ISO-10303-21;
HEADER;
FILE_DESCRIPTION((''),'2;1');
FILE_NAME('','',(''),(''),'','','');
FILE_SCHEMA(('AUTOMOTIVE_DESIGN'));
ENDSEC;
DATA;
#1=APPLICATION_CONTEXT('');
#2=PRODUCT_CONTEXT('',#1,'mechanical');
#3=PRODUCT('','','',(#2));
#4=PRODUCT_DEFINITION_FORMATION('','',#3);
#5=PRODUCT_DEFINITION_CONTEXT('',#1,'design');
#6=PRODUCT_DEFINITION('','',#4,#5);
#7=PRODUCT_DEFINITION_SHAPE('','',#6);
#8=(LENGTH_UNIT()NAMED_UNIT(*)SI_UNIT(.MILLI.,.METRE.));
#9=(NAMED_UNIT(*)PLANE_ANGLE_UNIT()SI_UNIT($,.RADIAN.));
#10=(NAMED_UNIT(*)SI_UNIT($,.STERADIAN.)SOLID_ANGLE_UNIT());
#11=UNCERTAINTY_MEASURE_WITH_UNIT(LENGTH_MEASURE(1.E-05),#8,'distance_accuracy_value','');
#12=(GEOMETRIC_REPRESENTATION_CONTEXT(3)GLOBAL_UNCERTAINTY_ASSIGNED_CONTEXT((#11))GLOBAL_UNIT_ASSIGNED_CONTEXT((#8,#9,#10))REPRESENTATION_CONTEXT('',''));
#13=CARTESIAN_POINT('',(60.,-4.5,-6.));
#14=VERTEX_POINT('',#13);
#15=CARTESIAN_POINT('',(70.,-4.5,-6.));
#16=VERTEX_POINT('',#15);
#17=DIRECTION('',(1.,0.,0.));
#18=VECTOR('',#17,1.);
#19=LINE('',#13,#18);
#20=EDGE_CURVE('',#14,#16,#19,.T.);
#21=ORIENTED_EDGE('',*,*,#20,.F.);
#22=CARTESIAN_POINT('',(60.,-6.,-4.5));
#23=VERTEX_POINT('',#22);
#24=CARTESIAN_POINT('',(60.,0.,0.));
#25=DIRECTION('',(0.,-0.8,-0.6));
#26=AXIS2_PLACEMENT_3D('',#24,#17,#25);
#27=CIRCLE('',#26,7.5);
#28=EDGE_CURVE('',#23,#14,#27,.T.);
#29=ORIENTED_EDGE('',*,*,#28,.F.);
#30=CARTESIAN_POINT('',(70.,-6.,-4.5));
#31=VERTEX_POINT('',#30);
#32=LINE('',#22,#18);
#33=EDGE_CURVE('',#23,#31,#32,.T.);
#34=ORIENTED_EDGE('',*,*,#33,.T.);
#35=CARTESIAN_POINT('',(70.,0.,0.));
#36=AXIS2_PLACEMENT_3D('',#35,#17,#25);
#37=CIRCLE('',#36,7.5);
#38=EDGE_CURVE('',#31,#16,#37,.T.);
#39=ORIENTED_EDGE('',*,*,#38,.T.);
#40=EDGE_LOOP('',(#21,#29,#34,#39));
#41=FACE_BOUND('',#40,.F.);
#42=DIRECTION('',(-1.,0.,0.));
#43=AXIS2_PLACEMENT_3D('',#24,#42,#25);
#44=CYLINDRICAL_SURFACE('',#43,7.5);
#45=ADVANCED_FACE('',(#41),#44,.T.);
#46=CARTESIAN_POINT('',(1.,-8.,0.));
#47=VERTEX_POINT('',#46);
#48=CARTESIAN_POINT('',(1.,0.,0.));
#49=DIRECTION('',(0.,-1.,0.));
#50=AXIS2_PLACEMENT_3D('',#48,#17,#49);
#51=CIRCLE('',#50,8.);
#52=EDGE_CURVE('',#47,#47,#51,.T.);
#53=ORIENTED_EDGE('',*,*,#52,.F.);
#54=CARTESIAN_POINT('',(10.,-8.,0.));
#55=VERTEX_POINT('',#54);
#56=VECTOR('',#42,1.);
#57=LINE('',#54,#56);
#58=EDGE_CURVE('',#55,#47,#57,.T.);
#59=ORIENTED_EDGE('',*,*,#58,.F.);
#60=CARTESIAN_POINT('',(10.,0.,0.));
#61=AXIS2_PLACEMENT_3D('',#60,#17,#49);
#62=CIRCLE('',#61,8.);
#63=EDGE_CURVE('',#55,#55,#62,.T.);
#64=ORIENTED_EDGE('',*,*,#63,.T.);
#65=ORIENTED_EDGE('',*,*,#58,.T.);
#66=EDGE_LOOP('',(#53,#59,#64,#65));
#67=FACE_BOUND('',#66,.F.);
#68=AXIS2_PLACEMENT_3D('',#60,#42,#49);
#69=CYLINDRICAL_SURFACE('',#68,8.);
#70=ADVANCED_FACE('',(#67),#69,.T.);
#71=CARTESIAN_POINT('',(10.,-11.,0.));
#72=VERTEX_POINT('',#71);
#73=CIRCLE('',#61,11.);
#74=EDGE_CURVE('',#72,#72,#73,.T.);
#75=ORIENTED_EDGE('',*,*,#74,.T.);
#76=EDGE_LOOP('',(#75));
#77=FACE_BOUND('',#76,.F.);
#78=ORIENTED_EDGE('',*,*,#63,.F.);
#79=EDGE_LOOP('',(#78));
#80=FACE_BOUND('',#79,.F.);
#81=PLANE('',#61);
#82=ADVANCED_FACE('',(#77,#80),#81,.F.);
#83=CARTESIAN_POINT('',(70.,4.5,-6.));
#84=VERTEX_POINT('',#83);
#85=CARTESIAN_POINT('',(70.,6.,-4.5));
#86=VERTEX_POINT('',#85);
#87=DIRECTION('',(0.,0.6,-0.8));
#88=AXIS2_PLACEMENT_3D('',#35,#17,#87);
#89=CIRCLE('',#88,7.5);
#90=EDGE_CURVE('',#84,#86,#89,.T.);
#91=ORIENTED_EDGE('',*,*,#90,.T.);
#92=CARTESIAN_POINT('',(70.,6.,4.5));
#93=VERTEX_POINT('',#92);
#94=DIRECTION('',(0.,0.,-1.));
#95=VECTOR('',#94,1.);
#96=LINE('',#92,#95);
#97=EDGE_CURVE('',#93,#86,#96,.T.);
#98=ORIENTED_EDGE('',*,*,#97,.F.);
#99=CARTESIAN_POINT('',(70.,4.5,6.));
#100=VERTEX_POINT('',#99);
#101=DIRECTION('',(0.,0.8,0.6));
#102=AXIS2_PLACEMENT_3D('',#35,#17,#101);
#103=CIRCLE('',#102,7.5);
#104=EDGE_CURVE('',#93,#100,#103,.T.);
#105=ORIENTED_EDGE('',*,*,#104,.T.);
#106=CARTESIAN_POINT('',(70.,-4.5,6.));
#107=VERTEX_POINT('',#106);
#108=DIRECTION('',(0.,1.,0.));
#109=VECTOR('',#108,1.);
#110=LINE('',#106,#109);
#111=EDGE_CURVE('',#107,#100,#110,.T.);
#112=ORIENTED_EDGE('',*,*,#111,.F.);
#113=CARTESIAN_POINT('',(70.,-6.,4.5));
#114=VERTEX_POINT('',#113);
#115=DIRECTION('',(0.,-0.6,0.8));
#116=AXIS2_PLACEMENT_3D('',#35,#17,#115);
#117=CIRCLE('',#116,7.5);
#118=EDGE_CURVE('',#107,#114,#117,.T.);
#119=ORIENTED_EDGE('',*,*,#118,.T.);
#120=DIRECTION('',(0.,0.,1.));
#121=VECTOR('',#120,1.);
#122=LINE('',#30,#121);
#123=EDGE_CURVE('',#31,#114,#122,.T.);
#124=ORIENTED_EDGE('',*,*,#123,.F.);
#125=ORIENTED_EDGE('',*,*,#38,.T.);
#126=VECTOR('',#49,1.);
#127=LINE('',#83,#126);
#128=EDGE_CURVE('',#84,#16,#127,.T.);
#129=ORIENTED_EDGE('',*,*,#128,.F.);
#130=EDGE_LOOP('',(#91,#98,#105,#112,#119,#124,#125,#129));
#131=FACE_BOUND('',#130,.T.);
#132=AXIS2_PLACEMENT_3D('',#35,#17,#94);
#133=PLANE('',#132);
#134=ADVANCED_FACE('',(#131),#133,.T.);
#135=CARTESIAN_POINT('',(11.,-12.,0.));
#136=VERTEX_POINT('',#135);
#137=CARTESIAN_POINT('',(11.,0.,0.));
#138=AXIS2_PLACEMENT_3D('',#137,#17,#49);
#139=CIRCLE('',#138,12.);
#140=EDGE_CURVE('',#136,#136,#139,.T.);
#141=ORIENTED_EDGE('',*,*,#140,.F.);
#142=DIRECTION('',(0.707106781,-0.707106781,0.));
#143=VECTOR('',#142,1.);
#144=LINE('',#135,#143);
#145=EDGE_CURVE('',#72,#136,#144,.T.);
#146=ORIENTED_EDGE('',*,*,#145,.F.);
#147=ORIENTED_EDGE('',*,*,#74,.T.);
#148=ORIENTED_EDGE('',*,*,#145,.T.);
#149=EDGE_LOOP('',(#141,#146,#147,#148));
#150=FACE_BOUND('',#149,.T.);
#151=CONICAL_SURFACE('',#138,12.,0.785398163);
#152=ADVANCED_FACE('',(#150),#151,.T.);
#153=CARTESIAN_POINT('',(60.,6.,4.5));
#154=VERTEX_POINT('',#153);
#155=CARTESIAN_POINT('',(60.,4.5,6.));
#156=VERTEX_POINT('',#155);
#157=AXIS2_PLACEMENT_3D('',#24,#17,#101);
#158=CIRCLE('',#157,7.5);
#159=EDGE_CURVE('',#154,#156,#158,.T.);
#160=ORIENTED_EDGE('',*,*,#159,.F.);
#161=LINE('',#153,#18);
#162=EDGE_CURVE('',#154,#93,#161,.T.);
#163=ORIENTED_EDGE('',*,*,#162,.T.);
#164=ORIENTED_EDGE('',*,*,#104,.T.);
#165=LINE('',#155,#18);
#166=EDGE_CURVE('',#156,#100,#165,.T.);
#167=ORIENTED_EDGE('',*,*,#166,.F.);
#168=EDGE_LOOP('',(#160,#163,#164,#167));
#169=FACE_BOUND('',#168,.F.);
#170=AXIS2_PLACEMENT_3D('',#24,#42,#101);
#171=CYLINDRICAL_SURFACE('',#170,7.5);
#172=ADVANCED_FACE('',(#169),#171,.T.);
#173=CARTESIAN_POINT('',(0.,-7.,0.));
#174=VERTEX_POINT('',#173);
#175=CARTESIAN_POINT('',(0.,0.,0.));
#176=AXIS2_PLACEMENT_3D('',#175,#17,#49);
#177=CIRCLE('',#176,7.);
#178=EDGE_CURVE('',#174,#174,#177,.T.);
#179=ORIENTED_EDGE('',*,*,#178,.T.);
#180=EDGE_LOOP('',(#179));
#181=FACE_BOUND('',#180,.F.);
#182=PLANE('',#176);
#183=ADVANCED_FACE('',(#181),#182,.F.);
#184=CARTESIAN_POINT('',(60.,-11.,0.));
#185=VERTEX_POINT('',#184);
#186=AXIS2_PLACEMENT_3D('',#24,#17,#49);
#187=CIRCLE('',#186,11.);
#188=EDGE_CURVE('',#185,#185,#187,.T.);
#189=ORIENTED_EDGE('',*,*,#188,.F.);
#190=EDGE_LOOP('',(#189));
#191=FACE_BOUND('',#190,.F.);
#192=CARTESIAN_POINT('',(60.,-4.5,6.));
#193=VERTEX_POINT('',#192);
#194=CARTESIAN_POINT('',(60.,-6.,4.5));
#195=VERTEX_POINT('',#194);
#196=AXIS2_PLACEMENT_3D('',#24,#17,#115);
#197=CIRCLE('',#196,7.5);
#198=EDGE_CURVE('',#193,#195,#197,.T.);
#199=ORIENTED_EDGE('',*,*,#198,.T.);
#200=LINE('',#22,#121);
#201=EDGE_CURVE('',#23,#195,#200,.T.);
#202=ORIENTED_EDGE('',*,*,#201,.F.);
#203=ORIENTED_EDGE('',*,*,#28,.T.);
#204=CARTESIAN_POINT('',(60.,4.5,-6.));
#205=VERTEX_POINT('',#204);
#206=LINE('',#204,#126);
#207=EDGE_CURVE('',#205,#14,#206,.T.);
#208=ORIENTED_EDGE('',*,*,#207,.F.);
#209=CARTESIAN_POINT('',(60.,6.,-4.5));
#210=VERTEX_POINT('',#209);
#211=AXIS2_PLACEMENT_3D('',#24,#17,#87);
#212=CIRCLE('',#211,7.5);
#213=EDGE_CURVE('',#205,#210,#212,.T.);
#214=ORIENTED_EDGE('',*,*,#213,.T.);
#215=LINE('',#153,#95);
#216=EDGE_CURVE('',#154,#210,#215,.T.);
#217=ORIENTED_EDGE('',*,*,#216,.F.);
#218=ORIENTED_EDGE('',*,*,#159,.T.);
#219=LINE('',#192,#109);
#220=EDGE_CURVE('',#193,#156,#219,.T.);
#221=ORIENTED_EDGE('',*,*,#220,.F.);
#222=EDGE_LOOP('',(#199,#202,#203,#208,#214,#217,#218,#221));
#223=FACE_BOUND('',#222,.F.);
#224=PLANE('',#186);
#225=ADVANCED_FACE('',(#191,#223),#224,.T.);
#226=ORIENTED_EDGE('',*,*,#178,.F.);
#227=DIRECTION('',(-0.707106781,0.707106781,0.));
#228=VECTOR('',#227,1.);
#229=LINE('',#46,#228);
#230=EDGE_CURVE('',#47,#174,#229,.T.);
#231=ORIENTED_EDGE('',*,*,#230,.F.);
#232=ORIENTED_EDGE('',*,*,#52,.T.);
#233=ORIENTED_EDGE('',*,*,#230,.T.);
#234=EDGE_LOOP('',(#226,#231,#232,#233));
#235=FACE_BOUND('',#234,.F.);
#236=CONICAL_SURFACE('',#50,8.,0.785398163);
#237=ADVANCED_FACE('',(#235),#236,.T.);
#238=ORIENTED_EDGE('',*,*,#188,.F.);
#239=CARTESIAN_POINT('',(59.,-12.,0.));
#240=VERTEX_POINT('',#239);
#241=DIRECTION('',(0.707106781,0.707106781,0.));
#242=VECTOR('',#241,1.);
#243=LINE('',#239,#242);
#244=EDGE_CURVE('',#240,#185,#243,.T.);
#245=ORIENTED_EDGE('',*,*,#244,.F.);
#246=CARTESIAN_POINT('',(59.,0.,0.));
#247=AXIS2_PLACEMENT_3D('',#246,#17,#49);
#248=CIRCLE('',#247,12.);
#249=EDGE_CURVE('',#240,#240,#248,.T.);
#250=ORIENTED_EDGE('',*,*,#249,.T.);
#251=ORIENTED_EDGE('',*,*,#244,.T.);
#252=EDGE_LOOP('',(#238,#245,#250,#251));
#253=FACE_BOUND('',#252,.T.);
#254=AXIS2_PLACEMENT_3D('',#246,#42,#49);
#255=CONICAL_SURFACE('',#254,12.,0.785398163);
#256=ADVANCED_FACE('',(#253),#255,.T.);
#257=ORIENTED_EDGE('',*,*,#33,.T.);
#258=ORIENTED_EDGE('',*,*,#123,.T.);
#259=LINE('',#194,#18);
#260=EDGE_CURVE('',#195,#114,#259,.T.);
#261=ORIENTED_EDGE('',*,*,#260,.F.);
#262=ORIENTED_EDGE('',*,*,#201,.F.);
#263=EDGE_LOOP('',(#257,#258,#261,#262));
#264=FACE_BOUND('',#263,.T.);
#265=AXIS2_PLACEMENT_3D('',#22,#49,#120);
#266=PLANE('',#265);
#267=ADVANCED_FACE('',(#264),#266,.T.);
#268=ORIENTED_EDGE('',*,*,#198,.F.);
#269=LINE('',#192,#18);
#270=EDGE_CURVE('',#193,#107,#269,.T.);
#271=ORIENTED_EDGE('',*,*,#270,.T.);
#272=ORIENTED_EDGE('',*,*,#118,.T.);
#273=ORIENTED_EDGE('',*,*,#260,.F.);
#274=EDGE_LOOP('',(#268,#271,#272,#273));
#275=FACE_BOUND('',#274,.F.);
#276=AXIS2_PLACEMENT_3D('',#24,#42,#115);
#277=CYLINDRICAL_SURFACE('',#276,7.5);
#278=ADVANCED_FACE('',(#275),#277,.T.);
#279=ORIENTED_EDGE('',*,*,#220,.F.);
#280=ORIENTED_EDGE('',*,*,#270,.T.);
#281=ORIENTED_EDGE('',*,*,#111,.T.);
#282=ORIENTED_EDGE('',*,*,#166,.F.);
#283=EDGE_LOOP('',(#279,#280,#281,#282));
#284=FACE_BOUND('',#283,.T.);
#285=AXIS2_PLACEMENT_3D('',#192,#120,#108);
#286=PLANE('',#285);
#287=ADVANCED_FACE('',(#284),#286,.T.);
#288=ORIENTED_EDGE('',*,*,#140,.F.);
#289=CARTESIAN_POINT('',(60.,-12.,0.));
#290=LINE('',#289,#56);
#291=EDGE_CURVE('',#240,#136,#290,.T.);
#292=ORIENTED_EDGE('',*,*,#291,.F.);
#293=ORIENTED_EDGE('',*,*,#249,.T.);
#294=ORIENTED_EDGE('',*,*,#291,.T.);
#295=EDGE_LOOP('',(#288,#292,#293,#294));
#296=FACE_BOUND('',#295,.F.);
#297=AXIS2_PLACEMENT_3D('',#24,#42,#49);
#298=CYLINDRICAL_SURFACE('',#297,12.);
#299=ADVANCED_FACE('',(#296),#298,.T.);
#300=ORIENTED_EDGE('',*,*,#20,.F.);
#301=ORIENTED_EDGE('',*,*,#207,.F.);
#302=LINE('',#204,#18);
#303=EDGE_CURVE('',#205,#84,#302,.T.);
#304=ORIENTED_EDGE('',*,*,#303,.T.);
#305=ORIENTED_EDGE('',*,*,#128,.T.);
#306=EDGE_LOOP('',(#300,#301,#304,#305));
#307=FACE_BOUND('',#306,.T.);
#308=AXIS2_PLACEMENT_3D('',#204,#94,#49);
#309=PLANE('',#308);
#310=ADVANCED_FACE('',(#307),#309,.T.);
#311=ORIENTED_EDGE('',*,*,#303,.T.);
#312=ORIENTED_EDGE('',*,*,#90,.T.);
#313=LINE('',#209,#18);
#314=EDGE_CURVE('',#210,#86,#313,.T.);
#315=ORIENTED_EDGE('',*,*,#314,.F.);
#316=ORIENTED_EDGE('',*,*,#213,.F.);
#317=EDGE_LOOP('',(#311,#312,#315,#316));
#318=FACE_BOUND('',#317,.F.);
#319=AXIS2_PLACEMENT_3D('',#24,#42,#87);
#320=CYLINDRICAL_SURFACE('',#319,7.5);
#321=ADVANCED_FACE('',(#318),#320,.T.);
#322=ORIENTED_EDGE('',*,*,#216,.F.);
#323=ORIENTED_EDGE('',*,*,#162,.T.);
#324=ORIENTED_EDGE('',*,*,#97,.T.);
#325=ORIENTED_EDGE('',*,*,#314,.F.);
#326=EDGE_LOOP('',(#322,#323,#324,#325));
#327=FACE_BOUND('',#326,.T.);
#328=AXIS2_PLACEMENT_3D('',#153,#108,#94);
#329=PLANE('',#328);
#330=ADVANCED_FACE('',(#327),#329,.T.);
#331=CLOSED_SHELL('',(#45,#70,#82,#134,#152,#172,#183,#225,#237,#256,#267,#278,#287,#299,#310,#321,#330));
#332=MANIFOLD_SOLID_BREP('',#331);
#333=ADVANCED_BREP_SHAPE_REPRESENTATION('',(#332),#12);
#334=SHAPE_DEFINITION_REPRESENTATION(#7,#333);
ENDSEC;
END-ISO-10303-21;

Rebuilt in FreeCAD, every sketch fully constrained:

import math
import FreeCAD as App
import Part
import Sketcher

V = App.Vector
Q = App.Units.Quantity


def edges_at(feature, points):
    """Names of the edges that pass closest to the given points."""
    edges = feature.Shape.Edges
    near = lambda p: min(range(len(edges)), key=lambda i: edges[i].distToShape(Part.Vertex(*p))[0])
    return sorted({f"Edge{near(p) + 1}" for p in points})


def add_polygon(sketch, points):
    """Adds a closed chain of lines whose ends are joined by coincident constraints."""
    first, n = sketch.GeometryCount, len(points)
    for a, b in zip(points, points[1:] + points[:1]):
        sketch.addGeometry(Part.LineSegment(App.Vector(*a, 0), App.Vector(*b, 0)), False)
    for i in range(n):
        sketch.addConstraint(Sketcher.Constraint("Coincident", first + i, 2, first + (i + 1) % n, 1))

doc = App.newDocument("Part")
body = doc.addObject("PartDesign::Body", "Body")

sketch1 = doc.addObject("Sketcher::SketchObject", "Sketch")
body.addObject(sketch1)
sketch1.AttachmentSupport = (doc.XY_Plane, [""])
sketch1.MapMode = "FlatFace"
add_polygon(sketch1, [(0, 0), (0, -8), (10, -8), (10, -12), (60, -12), (60, 0)])
sketch1.addConstraint([
    Sketcher.Constraint("Vertical", 0),
    Sketcher.Constraint("Horizontal", 1),
    Sketcher.Constraint("Vertical", 2),
    Sketcher.Constraint("Horizontal", 3),
    Sketcher.Constraint("Vertical", 4),
    Sketcher.Constraint("Horizontal", 5),
    Sketcher.Constraint("Coincident", 5, 2, -1, 1),
    Sketcher.Constraint("DistanceX", 1, 1, 1, 2, Q("10 mm")),
    Sketcher.Constraint("DistanceX", 3, 1, 3, 2, Q("50 mm")),
    Sketcher.Constraint("DistanceY", 0, 2, 0, 1, Q("8 mm")),
    Sketcher.Constraint("DistanceY", 4, 1, 4, 2, Q("12 mm")),
])
revolution = doc.addObject("PartDesign::Revolution", "Revolution")
body.addObject(revolution)
revolution.Profile = sketch1
revolution.ReferenceAxis = (sketch1, ["H_Axis"])
revolution.Angle = 360
doc.recompute()

chamfer = doc.addObject("PartDesign::Chamfer", "Chamfer")
body.addObject(chamfer)
chamfer.Base = (revolution, edges_at(revolution, [(60, 12, 0)]))
chamfer.Size = 1
doc.recompute()

chamfer2 = doc.addObject("PartDesign::Chamfer", "Chamfer001")
body.addObject(chamfer2)
chamfer2.Base = (chamfer, edges_at(chamfer, [(0, 8, 0)]))
chamfer2.Size = 1
doc.recompute()

chamfer3 = doc.addObject("PartDesign::Chamfer", "Chamfer002")
body.addObject(chamfer3)
chamfer3.Base = (chamfer2, edges_at(chamfer2, [(10, 12, 0)]))
chamfer3.Size = 1

sketch2 = doc.addObject("Sketcher::SketchObject", "Sketch001")
body.addObject(sketch2)
sketch2.AttachmentSupport = (doc.YZ_Plane, [""])
sketch2.MapMode = "FlatFace"
sketch2.AttachmentOffset = App.Placement(V(0, 0, 60), App.Rotation())
sketch2.addGeometry([
    Part.LineSegment(V(6, -4.5, 0), V(6, 4.5, 0)),
    Part.ArcOfCircle(Part.Circle(V(0, 0, 0), V(0, 0, 1), 7.5), math.radians(36.87), math.radians(53.13)),
    Part.LineSegment(V(4.5, 6, 0), V(-4.5, 6, 0)),
    Part.ArcOfCircle(Part.Circle(V(0, 0, 0), V(0, 0, 1), 7.5), math.radians(126.87), math.radians(143.13)),
    Part.LineSegment(V(-6, 4.5, 0), V(-6, -4.5, 0)),
    Part.ArcOfCircle(Part.Circle(V(0, 0, 0), V(0, 0, 1), 7.5), math.radians(-143.13), math.radians(-126.87)),
    Part.LineSegment(V(-4.5, -6, 0), V(4.5, -6, 0)),
    Part.ArcOfCircle(Part.Circle(V(0, 0, 0), V(0, 0, 1), 7.5), math.radians(-53.13), math.radians(-36.87)),
], False)
sketch2.addConstraint([
    Sketcher.Constraint("Coincident", 0, 2, 1, 1),
    Sketcher.Constraint("Coincident", 1, 2, 2, 1),
    Sketcher.Constraint("Coincident", 2, 2, 3, 1),
    Sketcher.Constraint("Coincident", 3, 2, 4, 1),
    Sketcher.Constraint("Coincident", 4, 2, 5, 1),
    Sketcher.Constraint("Coincident", 5, 2, 6, 1),
    Sketcher.Constraint("Coincident", 6, 2, 7, 1),
    Sketcher.Constraint("Coincident", 7, 2, 0, 1),
    Sketcher.Constraint("Vertical", 0),
    Sketcher.Constraint("Horizontal", 2),
    Sketcher.Constraint("Vertical", 4),
    Sketcher.Constraint("Horizontal", 6),
    Sketcher.Constraint("Coincident", 1, 3, -1, 1),
    Sketcher.Constraint("Coincident", 3, 3, -1, 1),
    Sketcher.Constraint("Coincident", 5, 3, -1, 1),
    Sketcher.Constraint("Coincident", 7, 3, -1, 1),
    Sketcher.Constraint("Equal", 1, 3),
    Sketcher.Constraint("Equal", 3, 5),
    Sketcher.Constraint("Equal", 5, 7),
    Sketcher.Constraint("Horizontal", 0, 2, 3, 2),
    Sketcher.Constraint("Vertical", 2, 2, 5, 2),
    Sketcher.Constraint("Equal", 6, 0),
    Sketcher.Constraint("Radius", 1, Q("7.5 mm")),
    Sketcher.Constraint("DistanceX", 2, 2, 2, 1, Q("9 mm")),
])
pad1 = doc.addObject("PartDesign::Pad", "Pad")
body.addObject(pad1)
pad1.Profile = sketch2
pad1.Length = 10

doc.recompute()
